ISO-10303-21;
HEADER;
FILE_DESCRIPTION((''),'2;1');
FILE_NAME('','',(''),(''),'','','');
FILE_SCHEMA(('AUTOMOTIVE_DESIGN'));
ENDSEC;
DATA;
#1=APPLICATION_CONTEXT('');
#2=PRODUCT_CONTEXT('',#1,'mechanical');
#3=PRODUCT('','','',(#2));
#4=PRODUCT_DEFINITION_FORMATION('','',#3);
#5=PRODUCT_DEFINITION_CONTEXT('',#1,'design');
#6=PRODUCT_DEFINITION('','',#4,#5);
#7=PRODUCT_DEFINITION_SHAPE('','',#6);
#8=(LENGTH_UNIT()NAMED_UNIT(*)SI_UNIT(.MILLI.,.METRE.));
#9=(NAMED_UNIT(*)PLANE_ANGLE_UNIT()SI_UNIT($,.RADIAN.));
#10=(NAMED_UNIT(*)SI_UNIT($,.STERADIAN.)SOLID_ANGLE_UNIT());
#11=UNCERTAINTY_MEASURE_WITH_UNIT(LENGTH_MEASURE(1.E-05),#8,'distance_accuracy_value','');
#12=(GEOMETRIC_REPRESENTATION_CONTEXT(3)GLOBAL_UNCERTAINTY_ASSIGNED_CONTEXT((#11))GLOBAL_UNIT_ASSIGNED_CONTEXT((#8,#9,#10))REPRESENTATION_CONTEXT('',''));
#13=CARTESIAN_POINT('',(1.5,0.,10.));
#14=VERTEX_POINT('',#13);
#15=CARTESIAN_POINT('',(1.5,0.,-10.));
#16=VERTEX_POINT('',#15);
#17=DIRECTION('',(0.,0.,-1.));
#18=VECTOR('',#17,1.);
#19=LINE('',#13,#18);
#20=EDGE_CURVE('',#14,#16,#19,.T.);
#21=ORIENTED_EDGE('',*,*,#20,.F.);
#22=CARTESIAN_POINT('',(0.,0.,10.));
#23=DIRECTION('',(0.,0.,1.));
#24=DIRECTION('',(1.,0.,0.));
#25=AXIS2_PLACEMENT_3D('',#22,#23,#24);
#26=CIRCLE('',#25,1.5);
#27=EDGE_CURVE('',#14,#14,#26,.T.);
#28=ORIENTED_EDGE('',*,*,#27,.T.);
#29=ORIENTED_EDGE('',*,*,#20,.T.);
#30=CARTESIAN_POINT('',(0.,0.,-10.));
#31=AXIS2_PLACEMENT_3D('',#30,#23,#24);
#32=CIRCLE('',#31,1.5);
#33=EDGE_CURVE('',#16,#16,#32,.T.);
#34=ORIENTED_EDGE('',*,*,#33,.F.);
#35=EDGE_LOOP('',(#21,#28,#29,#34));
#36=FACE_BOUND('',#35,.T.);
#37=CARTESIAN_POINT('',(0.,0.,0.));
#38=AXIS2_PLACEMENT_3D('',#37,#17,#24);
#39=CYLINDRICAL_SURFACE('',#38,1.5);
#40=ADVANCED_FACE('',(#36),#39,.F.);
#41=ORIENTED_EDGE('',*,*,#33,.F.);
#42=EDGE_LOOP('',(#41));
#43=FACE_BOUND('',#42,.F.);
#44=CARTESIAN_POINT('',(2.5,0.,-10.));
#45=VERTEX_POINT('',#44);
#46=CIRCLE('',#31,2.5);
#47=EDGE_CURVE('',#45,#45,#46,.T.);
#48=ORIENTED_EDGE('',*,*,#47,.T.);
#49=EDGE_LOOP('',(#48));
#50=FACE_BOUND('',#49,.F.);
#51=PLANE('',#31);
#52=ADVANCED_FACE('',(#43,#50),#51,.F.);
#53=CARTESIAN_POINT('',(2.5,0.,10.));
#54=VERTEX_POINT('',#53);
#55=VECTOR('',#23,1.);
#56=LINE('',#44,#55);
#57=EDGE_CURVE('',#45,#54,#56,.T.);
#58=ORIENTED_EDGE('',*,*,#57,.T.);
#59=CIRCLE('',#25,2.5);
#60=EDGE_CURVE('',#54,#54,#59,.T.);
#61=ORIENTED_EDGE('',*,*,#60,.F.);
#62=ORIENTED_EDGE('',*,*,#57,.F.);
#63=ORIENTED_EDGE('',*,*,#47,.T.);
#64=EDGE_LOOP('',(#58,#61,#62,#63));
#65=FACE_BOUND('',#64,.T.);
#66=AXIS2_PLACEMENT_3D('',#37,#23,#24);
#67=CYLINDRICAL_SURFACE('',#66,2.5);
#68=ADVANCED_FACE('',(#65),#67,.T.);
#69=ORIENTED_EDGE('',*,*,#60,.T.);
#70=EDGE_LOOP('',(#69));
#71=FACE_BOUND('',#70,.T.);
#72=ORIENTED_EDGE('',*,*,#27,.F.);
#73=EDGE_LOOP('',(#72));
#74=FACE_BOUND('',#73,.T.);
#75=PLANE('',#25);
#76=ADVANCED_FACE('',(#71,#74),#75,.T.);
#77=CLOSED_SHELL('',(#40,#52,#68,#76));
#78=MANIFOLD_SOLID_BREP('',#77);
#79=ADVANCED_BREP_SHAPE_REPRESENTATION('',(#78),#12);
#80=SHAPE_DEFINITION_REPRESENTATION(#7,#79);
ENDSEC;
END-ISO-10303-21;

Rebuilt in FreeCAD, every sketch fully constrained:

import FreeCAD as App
import Part
import Sketcher

V = App.Vector

doc = App.newDocument("Part")
body = doc.addObject("PartDesign::Body", "Body")

# Sketch on XY plane
sketch1 = body.newObject("Sketcher::SketchObject", "Sketch")
sketch1.AttachmentSupport = (doc.getObject("XY_Plane"), [""])
sketch1.MapMode = "FlatFace"
sketch1.addGeometry([
    Part.Circle(V(0, 0, 0), V(0, 0, 1), 2.5),
    Part.Circle(V(0, 0, 0), V(0, 0, 1), 1.5),
], False)
sketch1.addConstraint([
    Sketcher.Constraint("Coincident", 0, 3, -1, 1),
    Sketcher.Constraint("Coincident", 1, 3, -1, 1),
    Sketcher.Constraint("Diameter", 0, 5.0),
    Sketcher.Constraint("Diameter", 1, 3.0),
])
pad1 = body.newObject("PartDesign::Pad", "Pad")
pad1.Profile = sketch1
pad1.Length = 20
pad1.Midplane = True

doc.recompute()
